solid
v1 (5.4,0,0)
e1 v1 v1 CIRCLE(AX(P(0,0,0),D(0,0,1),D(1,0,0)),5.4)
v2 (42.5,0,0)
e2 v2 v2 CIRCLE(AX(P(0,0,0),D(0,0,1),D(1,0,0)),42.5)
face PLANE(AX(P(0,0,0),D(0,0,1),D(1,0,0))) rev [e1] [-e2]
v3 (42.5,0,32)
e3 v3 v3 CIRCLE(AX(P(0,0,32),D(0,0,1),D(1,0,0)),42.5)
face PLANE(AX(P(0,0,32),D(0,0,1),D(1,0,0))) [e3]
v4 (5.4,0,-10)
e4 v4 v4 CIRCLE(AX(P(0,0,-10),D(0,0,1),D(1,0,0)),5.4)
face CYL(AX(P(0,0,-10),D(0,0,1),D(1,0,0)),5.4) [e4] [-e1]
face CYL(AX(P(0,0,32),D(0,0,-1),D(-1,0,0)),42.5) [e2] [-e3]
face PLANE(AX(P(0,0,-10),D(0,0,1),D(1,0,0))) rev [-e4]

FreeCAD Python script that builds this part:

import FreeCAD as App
import Part
import Sketcher

doc = App.newDocument("Part")
body = doc.addObject("PartDesign::Body", "Body")

# Sketch on XY plane
sketch1 = body.newObject("Sketcher::SketchObject", "Sketch")
sketch1.AttachmentSupport = (doc.getObject("XY_Plane"), [""])
sketch1.MapMode = "FlatFace"
sketch1.addGeometry(Part.Circle(App.Vector(0, 0, 0), App.Vector(0, 0, 1), 42), False)
sketch1.addConstraint(Sketcher.Constraint("Coincident", 0, 3, -1, 1))
sketch1.addConstraint(Sketcher.Constraint("Diameter", 0, 85.0))
pad1 = body.newObject("PartDesign::Pad", "Pad")
pad1.Profile = sketch1
pad1.Length = 32

# Sketch on XY plane
sketch2 = body.newObject("Sketcher::SketchObject", "Sketch001")
sketch2.AttachmentSupport = (doc.getObject("XY_Plane"), [""])
sketch2.MapMode = "FlatFace"
sketch2.addGeometry(Part.Circle(App.Vector(0, 0, 0), App.Vector(0, 0, 1), 5), False)
sketch2.addConstraint(Sketcher.Constraint("Coincident", 0, 3, -1, 1))
sketch2.addConstraint(Sketcher.Constraint("Diameter", 0, 10.8))
pad2 = body.newObject("PartDesign::Pad", "Pad001")
pad2.Profile = sketch2
pad2.Length = 10
pad2.Reversed = True

doc.recompute()
